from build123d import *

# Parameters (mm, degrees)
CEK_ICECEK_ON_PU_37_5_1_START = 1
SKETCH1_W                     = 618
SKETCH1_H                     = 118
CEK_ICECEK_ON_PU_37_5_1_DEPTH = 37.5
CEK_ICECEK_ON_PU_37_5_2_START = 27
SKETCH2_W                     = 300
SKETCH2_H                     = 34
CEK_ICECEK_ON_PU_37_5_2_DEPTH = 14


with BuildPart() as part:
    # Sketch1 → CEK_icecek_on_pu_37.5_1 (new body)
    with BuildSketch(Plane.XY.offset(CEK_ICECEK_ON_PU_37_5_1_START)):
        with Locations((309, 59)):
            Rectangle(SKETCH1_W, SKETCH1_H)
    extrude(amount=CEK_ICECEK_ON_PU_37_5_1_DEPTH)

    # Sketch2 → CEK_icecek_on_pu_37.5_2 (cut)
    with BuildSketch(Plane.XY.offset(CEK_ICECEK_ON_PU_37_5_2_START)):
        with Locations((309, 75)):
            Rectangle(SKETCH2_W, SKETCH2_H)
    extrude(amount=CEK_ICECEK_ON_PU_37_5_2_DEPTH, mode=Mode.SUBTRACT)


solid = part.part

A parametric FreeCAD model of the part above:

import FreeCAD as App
import Part
import Sketcher

V = App.Vector
Q = App.Units.Quantity

doc = App.newDocument("Part")
body = doc.addObject("PartDesign::Body", "Body")

# Sketch on XY plane
sketch1 = body.newObject("Sketcher::SketchObject", "Sketch")
sketch1.AttachmentSupport = (doc.getObject("XY_Plane"), [""])
sketch1.MapMode = "FlatFace"
sketch1.AttachmentOffset = App.Placement(V(0, 0, 1), App.Rotation())
sketch1.addGeometry([
    Part.LineSegment(V(0, 118, 0), V(0, 0, 0)),
    Part.LineSegment(V(0, 0, 0), V(618, 0, 0)),
    Part.LineSegment(V(618, 0, 0), V(618, 118, 0)),
    Part.LineSegment(V(618, 118, 0), V(0, 118, 0)),
], False)
sketch1.addConstraint([
    Sketcher.Constraint("Coincident", 0, 2, 1, 1),
    Sketcher.Constraint("Coincident", 1, 2, 2, 1),
    Sketcher.Constraint("Coincident", 2, 2, 3, 1),
    Sketcher.Constraint("Coincident", 3, 2, 0, 1),
    Sketcher.Constraint("Vertical", 0),
    Sketcher.Constraint("Horizontal", 1),
    Sketcher.Constraint("Vertical", 2),
    Sketcher.Constraint("Horizontal", 3),
    Sketcher.Constraint("Coincident", 0, 2, -1, 1),
    Sketcher.Constraint("DistanceX", 1, 1, 1, 2, Q("618 mm")),
    Sketcher.Constraint("DistanceY", 0, 2, 0, 1, Q("118 mm")),
])
pad1 = body.newObject("PartDesign::Pad", "Pad")
pad1.Profile = sketch1
pad1.Length = 37.5

# Sketch on XY plane
sketch2 = body.newObject("Sketcher::SketchObject", "Sketch001")
sketch2.AttachmentSupport = (doc.getObject("XY_Plane"), [""])
sketch2.MapMode = "FlatFace"
sketch2.AttachmentOffset = App.Placement(V(0, 0, 27), App.Rotation())
sketch2.addGeometry([
    Part.LineSegment(V(159, 92, 0), V(159, 58, 0)),
    Part.LineSegment(V(159, 58, 0), V(459, 58, 0)),
    Part.LineSegment(V(459, 58, 0), V(459, 92, 0)),
    Part.LineSegment(V(459, 92, 0), V(159, 92, 0)),
], False)
sketch2.addConstraint([
    Sketcher.Constraint("Coincident", 0, 2, 1, 1),
    Sketcher.Constraint("Coincident", 1, 2, 2, 1),
    Sketcher.Constraint("Coincident", 2, 2, 3, 1),
    Sketcher.Constraint("Coincident", 3, 2, 0, 1),
    Sketcher.Constraint("Vertical", 0),
    Sketcher.Constraint("Horizontal", 1),
    Sketcher.Constraint("Vertical", 2),
    Sketcher.Constraint("Horizontal", 3),
    Sketcher.Constraint("DistanceX", 1, 1, 1, 2, Q("300 mm")),
    Sketcher.Constraint("DistanceY", 0, 2, 0, 1, Q("34 mm")),
    Sketcher.Constraint("DistanceX", -1, 1, 0, 2, Q("159 mm")),
    Sketcher.Constraint("DistanceY", -1, 1, 0, 2, Q("58 mm")),
])
pocket1 = body.newObject("PartDesign::Pocket", "Pocket")
pocket1.Profile = sketch2
pocket1.Length = 14
pocket1.Reversed = True

doc.recompute()
